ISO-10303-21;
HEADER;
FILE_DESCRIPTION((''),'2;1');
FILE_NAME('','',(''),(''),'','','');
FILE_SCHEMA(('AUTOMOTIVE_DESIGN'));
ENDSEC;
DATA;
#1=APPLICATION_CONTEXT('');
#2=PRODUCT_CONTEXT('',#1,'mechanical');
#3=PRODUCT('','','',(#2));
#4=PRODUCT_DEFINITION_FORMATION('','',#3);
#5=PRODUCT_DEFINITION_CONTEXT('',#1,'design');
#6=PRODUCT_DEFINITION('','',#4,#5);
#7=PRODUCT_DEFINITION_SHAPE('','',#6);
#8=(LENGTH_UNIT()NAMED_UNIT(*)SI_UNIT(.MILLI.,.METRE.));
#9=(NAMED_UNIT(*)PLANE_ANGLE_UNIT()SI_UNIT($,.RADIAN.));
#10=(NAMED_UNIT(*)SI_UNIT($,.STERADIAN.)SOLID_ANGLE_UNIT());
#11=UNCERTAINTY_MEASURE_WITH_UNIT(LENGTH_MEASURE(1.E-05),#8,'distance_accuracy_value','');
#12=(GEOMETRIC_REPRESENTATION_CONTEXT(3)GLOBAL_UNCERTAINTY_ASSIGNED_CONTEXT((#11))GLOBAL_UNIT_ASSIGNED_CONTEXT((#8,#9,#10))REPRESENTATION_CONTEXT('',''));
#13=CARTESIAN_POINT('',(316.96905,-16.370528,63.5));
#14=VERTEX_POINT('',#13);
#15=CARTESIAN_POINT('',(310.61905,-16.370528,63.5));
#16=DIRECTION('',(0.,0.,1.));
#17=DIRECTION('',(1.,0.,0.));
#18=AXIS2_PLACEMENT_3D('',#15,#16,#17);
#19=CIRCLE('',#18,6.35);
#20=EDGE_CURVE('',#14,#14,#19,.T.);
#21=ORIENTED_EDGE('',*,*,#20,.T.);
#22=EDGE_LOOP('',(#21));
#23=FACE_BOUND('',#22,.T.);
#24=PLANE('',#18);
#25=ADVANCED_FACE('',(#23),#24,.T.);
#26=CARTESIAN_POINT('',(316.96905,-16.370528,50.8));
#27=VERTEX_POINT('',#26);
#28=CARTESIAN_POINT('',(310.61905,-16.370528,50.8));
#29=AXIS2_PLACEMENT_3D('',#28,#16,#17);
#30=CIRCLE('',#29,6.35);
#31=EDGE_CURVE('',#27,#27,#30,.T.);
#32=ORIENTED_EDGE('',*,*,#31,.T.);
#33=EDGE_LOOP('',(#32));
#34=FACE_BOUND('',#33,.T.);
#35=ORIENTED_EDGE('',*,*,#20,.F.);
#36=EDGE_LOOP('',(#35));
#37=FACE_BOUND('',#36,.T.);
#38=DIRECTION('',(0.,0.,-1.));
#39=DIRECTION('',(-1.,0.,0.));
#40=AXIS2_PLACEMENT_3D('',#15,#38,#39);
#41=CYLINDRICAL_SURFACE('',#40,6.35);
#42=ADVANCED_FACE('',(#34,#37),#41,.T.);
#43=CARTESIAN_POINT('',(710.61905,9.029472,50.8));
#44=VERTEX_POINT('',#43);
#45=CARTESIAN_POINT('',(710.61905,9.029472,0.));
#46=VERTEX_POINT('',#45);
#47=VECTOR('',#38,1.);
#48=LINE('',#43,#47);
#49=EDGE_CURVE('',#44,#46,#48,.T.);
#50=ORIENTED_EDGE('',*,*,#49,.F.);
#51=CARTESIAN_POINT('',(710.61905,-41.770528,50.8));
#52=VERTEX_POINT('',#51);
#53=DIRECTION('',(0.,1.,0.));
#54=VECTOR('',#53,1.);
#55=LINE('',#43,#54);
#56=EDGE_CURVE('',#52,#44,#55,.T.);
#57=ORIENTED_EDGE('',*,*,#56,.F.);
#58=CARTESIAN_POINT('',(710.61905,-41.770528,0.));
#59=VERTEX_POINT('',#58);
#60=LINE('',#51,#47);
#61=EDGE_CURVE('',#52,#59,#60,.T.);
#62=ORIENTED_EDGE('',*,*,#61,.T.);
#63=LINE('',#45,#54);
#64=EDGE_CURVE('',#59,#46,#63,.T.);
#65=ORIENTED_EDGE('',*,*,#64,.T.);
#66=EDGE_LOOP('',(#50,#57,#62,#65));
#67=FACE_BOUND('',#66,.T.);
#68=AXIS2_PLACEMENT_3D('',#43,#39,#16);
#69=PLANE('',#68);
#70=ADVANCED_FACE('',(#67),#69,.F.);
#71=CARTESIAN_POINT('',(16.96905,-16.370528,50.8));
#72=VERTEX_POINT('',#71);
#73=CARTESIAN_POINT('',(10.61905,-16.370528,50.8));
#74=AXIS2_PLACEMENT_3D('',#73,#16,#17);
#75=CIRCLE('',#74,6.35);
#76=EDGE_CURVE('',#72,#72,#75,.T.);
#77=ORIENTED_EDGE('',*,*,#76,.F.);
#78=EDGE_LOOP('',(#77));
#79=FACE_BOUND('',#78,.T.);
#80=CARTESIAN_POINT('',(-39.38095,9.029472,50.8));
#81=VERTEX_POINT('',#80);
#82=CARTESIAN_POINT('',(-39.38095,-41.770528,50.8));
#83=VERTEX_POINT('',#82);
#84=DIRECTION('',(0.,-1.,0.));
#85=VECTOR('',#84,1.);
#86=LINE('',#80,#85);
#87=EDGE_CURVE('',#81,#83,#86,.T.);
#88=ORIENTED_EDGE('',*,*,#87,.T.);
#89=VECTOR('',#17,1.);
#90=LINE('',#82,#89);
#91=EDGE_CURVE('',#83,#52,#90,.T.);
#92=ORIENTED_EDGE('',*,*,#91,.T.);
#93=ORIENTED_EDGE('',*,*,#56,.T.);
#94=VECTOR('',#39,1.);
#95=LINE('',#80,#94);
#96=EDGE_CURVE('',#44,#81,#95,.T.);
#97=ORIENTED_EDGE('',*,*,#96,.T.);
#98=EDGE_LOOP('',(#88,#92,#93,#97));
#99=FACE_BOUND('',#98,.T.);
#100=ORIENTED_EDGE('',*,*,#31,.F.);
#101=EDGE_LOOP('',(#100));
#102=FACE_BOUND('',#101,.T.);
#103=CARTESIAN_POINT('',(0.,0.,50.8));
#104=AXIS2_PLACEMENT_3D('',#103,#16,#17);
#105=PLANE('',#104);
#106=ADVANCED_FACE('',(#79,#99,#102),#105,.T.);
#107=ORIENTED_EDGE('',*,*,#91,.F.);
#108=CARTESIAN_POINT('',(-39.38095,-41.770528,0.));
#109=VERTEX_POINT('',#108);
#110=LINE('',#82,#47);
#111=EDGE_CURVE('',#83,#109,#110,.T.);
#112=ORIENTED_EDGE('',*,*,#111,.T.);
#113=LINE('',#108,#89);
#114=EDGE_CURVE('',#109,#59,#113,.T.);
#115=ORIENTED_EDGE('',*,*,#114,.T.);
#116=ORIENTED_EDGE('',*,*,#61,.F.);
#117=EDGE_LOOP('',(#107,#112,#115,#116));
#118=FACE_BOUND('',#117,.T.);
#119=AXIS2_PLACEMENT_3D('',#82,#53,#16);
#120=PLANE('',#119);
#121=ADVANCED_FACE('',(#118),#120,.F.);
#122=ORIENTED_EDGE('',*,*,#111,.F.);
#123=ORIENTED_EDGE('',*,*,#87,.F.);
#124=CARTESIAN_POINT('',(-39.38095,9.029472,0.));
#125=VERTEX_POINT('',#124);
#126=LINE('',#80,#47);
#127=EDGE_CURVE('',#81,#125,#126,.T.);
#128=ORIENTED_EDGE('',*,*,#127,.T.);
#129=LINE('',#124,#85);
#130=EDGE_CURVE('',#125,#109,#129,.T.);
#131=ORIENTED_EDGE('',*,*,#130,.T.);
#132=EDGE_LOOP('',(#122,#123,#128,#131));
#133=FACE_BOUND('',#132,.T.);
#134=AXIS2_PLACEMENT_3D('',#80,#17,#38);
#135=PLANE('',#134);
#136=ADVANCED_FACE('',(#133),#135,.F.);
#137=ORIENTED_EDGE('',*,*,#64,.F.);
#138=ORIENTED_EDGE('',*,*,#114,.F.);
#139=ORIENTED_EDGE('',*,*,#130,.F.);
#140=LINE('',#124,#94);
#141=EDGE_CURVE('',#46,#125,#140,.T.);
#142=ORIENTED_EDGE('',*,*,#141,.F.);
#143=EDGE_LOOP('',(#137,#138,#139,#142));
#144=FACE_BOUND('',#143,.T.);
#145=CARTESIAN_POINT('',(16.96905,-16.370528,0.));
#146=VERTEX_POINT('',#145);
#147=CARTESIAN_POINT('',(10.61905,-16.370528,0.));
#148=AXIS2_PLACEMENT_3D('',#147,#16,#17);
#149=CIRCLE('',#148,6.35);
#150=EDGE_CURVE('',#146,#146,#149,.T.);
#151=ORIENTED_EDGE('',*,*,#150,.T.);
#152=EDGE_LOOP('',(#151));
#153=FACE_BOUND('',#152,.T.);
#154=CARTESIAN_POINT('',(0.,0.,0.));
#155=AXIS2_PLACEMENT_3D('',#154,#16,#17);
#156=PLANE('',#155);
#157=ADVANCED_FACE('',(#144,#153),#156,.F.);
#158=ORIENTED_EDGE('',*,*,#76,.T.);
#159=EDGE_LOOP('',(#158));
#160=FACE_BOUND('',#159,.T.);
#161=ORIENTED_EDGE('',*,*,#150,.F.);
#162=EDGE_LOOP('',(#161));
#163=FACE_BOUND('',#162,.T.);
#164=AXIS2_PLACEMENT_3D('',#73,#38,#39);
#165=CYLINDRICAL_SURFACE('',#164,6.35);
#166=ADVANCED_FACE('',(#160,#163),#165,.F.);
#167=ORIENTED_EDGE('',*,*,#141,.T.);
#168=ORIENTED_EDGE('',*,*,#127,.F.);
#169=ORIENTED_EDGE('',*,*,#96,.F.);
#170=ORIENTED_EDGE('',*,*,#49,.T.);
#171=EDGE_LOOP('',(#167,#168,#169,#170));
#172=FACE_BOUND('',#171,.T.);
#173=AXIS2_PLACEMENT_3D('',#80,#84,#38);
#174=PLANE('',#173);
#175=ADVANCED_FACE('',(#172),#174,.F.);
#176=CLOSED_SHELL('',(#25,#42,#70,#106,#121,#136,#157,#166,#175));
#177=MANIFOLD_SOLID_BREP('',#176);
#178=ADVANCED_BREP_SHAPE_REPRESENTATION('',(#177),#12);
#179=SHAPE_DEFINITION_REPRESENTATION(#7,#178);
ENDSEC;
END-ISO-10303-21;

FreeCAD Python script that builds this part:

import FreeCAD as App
import Part
import Sketcher

V = App.Vector
Q = App.Units.Quantity

doc = App.newDocument("Part")
body = doc.addObject("PartDesign::Body", "Body")

sketch1 = body.newObject("Sketcher::SketchObject", "Sketch")
sketch1.AttachmentSupport = (doc.getObject("XY_Plane"), [""])
sketch1.MapMode = "FlatFace"
sketch1.addGeometry(Part.LineSegment(V(-39, 9, 0), V(-39, -42, 0)), False)
sketch1.addGeometry(Part.LineSegment(V(-39, -42, 0), V(711, -42, 0)), False)
sketch1.addGeometry(Part.LineSegment(V(711, -42, 0), V(711, 9, 0)), False)
sketch1.addGeometry(Part.LineSegment(V(711, 9, 0), V(-39, 9, 0)), False)
sketch1.addGeometry(Part.Circle(V(11, -16, 0), V(0, 0, 1), 6), False)
sketch1.addConstraint(Sketcher.Constraint("Coincident", 0, 2, 1, 1))
sketch1.addConstraint(Sketcher.Constraint("Coincident", 1, 2, 2, 1))
sketch1.addConstraint(Sketcher.Constraint("Coincident", 2, 2, 3, 1))
sketch1.addConstraint(Sketcher.Constraint("Coincident", 3, 2, 0, 1))
sketch1.addConstraint(Sketcher.Constraint("Vertical", 0))
sketch1.addConstraint(Sketcher.Constraint("Horizontal", 1))
sketch1.addConstraint(Sketcher.Constraint("Vertical", 2))
sketch1.addConstraint(Sketcher.Constraint("Horizontal", 3))
sketch1.addConstraint(Sketcher.Constraint("Diameter", 4, Q("0.5 in")))
sketch1.addConstraint(Sketcher.Constraint("DistanceY", 0, 2, 0, 1, Q("2 in")))
sketch1.addConstraint(Sketcher.Constraint("DistanceY", 0, 2, 4, 3, Q("1 in")))
sketch1.addConstraint(Sketcher.Constraint("DistanceX", 1, 1, 1, 2, Q("750 mm")))
sketch1.addConstraint(Sketcher.Constraint("DistanceX", 0, 2, 4, 3, Q("50 mm")))
sketch1.addConstraint(Sketcher.Constraint("DistanceX", -1, 1, 4, 3, Q("10.61905 mm")))
sketch1.addConstraint(Sketcher.Constraint("DistanceY", 4, 3, -1, 1, Q("16.370528 mm")))
pad1 = body.newObject("PartDesign::Pad", "Pad")
pad1.Profile = sketch1
pad1.Length = Q("2 in")

sketch2 = body.newObject("Sketcher::SketchObject", "Sketch001")
sketch2.AttachmentSupport = (doc.getObject("XY_Plane"), [""])
sketch2.MapMode = "FlatFace"
sketch2.AttachmentOffset = App.Placement(V(0, 0, 2 * 25.4), App.Rotation())
sketch2.addGeometry(Part.Circle(V(311, -16, 0), V(0, 0, 1), 6), False)
sketch2.addConstraint(Sketcher.Constraint("Diameter", 0, Q("0.5 in")))
sketch2.addConstraint(Sketcher.Constraint("DistanceX", -1, 1, 0, 3, Q("310.61905 mm")))
sketch2.addConstraint(Sketcher.Constraint("DistanceY", 0, 3, -1, 1, Q("16.370528 mm")))
pad2 = body.newObject("PartDesign::Pad", "Pad001")
pad2.Profile = sketch2
pad2.Length = Q("0.5 in")

doc.recompute()
